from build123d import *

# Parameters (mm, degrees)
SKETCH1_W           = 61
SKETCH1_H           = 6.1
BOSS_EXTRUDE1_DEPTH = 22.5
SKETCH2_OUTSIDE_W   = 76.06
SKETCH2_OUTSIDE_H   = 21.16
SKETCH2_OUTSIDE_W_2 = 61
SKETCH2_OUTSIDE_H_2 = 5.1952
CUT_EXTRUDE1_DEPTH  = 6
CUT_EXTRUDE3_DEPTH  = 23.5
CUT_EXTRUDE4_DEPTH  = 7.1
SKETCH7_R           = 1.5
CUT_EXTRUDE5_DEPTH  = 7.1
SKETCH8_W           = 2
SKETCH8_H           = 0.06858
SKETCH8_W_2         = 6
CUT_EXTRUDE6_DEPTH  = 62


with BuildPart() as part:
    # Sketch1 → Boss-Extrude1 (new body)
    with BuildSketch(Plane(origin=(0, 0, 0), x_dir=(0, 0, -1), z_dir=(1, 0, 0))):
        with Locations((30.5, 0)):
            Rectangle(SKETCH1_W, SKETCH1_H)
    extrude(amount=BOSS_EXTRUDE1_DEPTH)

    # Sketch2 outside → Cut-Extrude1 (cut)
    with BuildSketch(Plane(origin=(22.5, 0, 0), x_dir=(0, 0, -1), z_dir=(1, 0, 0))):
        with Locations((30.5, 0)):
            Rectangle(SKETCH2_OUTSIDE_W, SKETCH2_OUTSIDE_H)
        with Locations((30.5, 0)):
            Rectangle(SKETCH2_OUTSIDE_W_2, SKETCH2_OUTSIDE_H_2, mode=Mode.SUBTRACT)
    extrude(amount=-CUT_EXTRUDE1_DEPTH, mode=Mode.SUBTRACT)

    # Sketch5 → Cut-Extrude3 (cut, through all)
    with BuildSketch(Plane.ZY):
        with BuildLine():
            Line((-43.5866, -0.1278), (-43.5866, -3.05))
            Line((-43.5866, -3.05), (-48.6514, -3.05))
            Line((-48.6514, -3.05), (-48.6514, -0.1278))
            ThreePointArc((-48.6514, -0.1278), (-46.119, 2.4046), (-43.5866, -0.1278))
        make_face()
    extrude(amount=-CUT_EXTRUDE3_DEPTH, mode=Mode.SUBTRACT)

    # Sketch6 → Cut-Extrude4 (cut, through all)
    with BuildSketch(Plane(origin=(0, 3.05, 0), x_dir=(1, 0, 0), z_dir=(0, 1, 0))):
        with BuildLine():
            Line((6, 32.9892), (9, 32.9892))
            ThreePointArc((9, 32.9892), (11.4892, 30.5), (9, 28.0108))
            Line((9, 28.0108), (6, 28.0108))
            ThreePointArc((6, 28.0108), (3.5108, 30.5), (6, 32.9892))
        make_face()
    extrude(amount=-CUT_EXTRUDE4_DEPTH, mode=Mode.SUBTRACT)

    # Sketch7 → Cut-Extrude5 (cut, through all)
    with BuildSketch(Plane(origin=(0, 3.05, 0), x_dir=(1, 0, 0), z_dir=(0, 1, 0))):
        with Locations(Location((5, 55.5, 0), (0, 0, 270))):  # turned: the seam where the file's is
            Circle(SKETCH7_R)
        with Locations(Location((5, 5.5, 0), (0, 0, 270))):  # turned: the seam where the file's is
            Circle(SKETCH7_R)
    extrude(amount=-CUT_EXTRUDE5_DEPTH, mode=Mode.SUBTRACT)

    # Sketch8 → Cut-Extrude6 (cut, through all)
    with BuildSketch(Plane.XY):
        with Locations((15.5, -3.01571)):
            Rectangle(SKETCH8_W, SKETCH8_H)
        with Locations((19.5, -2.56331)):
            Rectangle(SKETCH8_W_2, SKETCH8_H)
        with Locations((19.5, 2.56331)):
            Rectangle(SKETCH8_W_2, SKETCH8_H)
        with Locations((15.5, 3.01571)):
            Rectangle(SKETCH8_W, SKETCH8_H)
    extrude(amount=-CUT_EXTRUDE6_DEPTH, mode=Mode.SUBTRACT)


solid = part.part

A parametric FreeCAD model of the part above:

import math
import FreeCAD as App
import Part
import Sketcher
Q = App.Units.Quantity

doc = App.newDocument("Part")
body = doc.addObject("PartDesign::Body", "Body")

sketch1 = body.newObject("Sketcher::SketchObject", "Sketch")
sketch1.AttachmentSupport = (doc.getObject("YZ_Plane"), [""])
sketch1.MapMode = "FlatFace"
sketch1.addGeometry(Part.LineSegment(App.Vector(3.05, 0, 0), App.Vector(-3.05, 0, 0)), False)
sketch1.addGeometry(Part.LineSegment(App.Vector(-3.05, 0, 0), App.Vector(-3.05, -61, 0)), False)
sketch1.addGeometry(Part.LineSegment(App.Vector(-3.05, -61, 0), App.Vector(3.05, -61, 0)), False)
sketch1.addGeometry(Part.LineSegment(App.Vector(3.05, -61, 0), App.Vector(3.05, 0, 0)), False)
sketch1.addConstraint(Sketcher.Constraint("Coincident", 0, 2, 1, 1))
sketch1.addConstraint(Sketcher.Constraint("Coincident", 1, 2, 2, 1))
sketch1.addConstraint(Sketcher.Constraint("Coincident", 2, 2, 3, 1))
sketch1.addConstraint(Sketcher.Constraint("Coincident", 3, 2, 0, 1))
sketch1.addConstraint(Sketcher.Constraint("Horizontal", 0))
sketch1.addConstraint(Sketcher.Constraint("Vertical", 1))
sketch1.addConstraint(Sketcher.Constraint("Horizontal", 2))
sketch1.addConstraint(Sketcher.Constraint("Vertical", 3))
sketch1.addConstraint(Sketcher.Constraint("Symmetric", 0, 2, 3, 2, -1, 1))
sketch1.addConstraint(Sketcher.Constraint("DistanceY", 1, 2, 1, 1, Q("61 mm")))
sketch1.addConstraint(Sketcher.Constraint("DistanceX", 0, 2, 0, 1, Q("6.1 mm")))
pad1 = body.newObject("PartDesign::Pad", "Pad")
pad1.Profile = sketch1
pad1.Length = 22.5

sketch2 = body.newObject("Sketcher::SketchObject", "Sketch001")
sketch2.AttachmentSupport = (doc.getObject("YZ_Plane"), [""])
sketch2.MapMode = "FlatFace"
sketch2.AttachmentOffset = App.Placement(App.Vector(0, 0, 22.5), App.Rotation())
sketch2.addGeometry(Part.LineSegment(App.Vector(10.58, 7.53, 0), App.Vector(-10.58, 7.53, 0)), False)
sketch2.addGeometry(Part.LineSegment(App.Vector(-10.58, 7.53, 0), App.Vector(-10.58, -68.53, 0)), False)
sketch2.addGeometry(Part.LineSegment(App.Vector(-10.58, -68.53, 0), App.Vector(10.58, -68.53, 0)), False)
sketch2.addGeometry(Part.LineSegment(App.Vector(10.58, -68.53, 0), App.Vector(10.58, 7.53, 0)), False)
sketch2.addGeometry(Part.LineSegment(App.Vector(-2.5976, -61, 0), App.Vector(-2.5976, 0, 0)), False)
sketch2.addGeometry(Part.LineSegment(App.Vector(-2.5976, 0, 0), App.Vector(2.5976, 0, 0)), False)
sketch2.addGeometry(Part.LineSegment(App.Vector(2.5976, 0, 0), App.Vector(2.5976, -61, 0)), False)
sketch2.addGeometry(Part.LineSegment(App.Vector(2.5976, -61, 0), App.Vector(-2.5976, -61, 0)), False)
sketch2.addConstraint(Sketcher.Constraint("Coincident", 0, 2, 1, 1))
sketch2.addConstraint(Sketcher.Constraint("Coincident", 1, 2, 2, 1))
sketch2.addConstraint(Sketcher.Constraint("Coincident", 2, 2, 3, 1))
sketch2.addConstraint(Sketcher.Constraint("Coincident", 3, 2, 0, 1))
sketch2.addConstraint(Sketcher.Constraint("Coincident", 4, 2, 5, 1))
sketch2.addConstraint(Sketcher.Constraint("Coincident", 5, 2, 6, 1))
sketch2.addConstraint(Sketcher.Constraint("Coincident", 6, 2, 7, 1))
sketch2.addConstraint(Sketcher.Constraint("Coincident", 7, 2, 4, 1))
sketch2.addConstraint(Sketcher.Constraint("Horizontal", 0))
sketch2.addConstraint(Sketcher.Constraint("Vertical", 1))
sketch2.addConstraint(Sketcher.Constraint("Horizontal", 2))
sketch2.addConstraint(Sketcher.Constraint("Vertical", 3))
sketch2.addConstraint(Sketcher.Constraint("Vertical", 4))
sketch2.addConstraint(Sketcher.Constraint("Horizontal", 5))
sketch2.addConstraint(Sketcher.Constraint("Vertical", 6))
sketch2.addConstraint(Sketcher.Constraint("Horizontal", 7))
sketch2.addConstraint(Sketcher.Constraint("Symmetric", 4, 2, 5, 2, -1, 1))
sketch2.addConstraint(Sketcher.Constraint("DistanceY", 4, 1, 4, 2, Q("61 mm")))
sketch2.addConstraint(Sketcher.Constraint("DistanceX", 0, 2, 0, 1, Q("21.16 mm")))
sketch2.addConstraint(Sketcher.Constraint("DistanceY", 1, 2, 1, 1, Q("76.06 mm")))
sketch2.addConstraint(Sketcher.Constraint("DistanceX", 0, 2, -1, 1, Q("10.58 mm")))
sketch2.addConstraint(Sketcher.Constraint("DistanceY", -1, 1, 0, 2, Q("7.53 mm")))
sketch2.addConstraint(Sketcher.Constraint("DistanceX", 5, 1, 5, 2, Q("5.1952 mm")))
pocket1 = body.newObject("PartDesign::Pocket", "Pocket")
pocket1.Profile = sketch2
pocket1.Length = 6

sketch3 = body.newObject("Sketcher::SketchObject", "Sketch002")
sketch3.AttachmentSupport = (doc.getObject("YZ_Plane"), [""])
sketch3.MapMode = "FlatFace"
sketch3.addGeometry(Part.LineSegment(App.Vector(-3.05, -43.5866, 0), App.Vector(-0.1278, -43.5866, 0)), False)
sketch3.addGeometry(Part.ArcOfCircle(Part.Circle(App.Vector(-0.1278, -46.119, 0), App.Vector(0, 0, 1), 2.5324), math.radians(-90), math.radians(90)), False)
sketch3.addGeometry(Part.LineSegment(App.Vector(-0.1278, -48.6514, 0), App.Vector(-3.05, -48.6514, 0)), False)
sketch3.addGeometry(Part.LineSegment(App.Vector(-3.05, -48.6514, 0), App.Vector(-3.05, -43.5866, 0)), False)
sketch3.addConstraint(Sketcher.Constraint("Tangent", 0, 2, 1, 2))
sketch3.addConstraint(Sketcher.Constraint("Tangent", 1, 1, 2, 1))
sketch3.addConstraint(Sketcher.Constraint("Coincident", 2, 2, 3, 1))
sketch3.addConstraint(Sketcher.Constraint("Coincident", 3, 2, 0, 1))
sketch3.addConstraint(Sketcher.Constraint("Horizontal", 0))
sketch3.addConstraint(Sketcher.Constraint("Horizontal", 2))
sketch3.addConstraint(Sketcher.Constraint("Vertical", 3))
sketch3.addConstraint(Sketcher.Constraint("Radius", 1, Q("2.5324 mm")))
sketch3.addConstraint(Sketcher.Constraint("DistanceX", 2, 2, -1, 1, Q("3.05 mm")))
sketch3.addConstraint(Sketcher.Constraint("DistanceX", 0, 1, 0, 2, Q("2.9222 mm")))
sketch3.addConstraint(Sketcher.Constraint("DistanceY", 1, 3, -1, 1, Q("46.119 mm")))
pocket2 = body.newObject("PartDesign::Pocket", "Pocket001")
pocket2.Profile = sketch3
pocket2.Type = "ThroughAll"
pocket2.Reversed = True

sketch4 = body.newObject("Sketcher::SketchObject", "Sketch003")
sketch4.AttachmentSupport = (doc.getObject("XZ_Plane"), [""])
sketch4.MapMode = "FlatFace"
sketch4.AttachmentOffset = App.Placement(App.Vector(0, 0, -3.05), App.Rotation())
sketch4.addGeometry(Part.LineSegment(App.Vector(9, -32.9892, 0), App.Vector(6, -32.9892, 0)), False)
sketch4.addGeometry(Part.ArcOfCircle(Part.Circle(App.Vector(6, -30.5, 0), App.Vector(0, 0, 1), 2.4892), math.radians(90), math.radians(270)), False)
sketch4.addGeometry(Part.LineSegment(App.Vector(6, -28.0108, 0), App.Vector(9, -28.0108, 0)), False)
sketch4.addGeometry(Part.ArcOfCircle(Part.Circle(App.Vector(9, -30.5, 0), App.Vector(0, 0, 1), 2.4892), math.radians(-90), math.radians(90)), False)
sketch4.addConstraint(Sketcher.Constraint("Tangent", 0, 2, 1, 2))
sketch4.addConstraint(Sketcher.Constraint("Tangent", 1, 1, 2, 1))
sketch4.addConstraint(Sketcher.Constraint("Tangent", 2, 2, 3, 2))
sketch4.addConstraint(Sketcher.Constraint("Tangent", 3, 1, 0, 1))
sketch4.addConstraint(Sketcher.Constraint("Horizontal", 0))
sketch4.addConstraint(Sketcher.Constraint("Horizontal", 2))
sketch4.addConstraint(Sketcher.Constraint("DistanceX", 0, 2, 0, 1, Q("3 mm")))
sketch4.addConstraint(Sketcher.Constraint("DistanceX", -1, 1, 1, 3, Q("6 mm")))
sketch4.addConstraint(Sketcher.Constraint("DistanceY", 1, 3, -1, 1, Q("30.5 mm")))
sketch4.addConstraint(Sketcher.Constraint("Radius", 1, Q("2.4892 mm")))
pocket3 = body.newObject("PartDesign::Pocket", "Pocket002")
pocket3.Profile = sketch4
pocket3.Type = "ThroughAll"
pocket3.Reversed = True

sketch5 = body.newObject("Sketcher::SketchObject", "Sketch004")
sketch5.AttachmentSupport = (doc.getObject("XZ_Plane"), [""])
sketch5.MapMode = "FlatFace"
sketch5.AttachmentOffset = App.Placement(App.Vector(0, 0, -3.05), App.Rotation())
sketch5.addGeometry(Part.Circle(App.Vector(5, -55.5, 0), App.Vector(0, 0, 1), 1.5), False)
sketch5.addGeometry(Part.Circle(App.Vector(5, -5.5, 0), App.Vector(0, 0, 1), 1.5), False)
sketch5.addConstraint(Sketcher.Constraint("Equal", 0, 1))
sketch5.addConstraint(Sketcher.Constraint("Vertical", 0, 3, 1, 3))
sketch5.addConstraint(Sketcher.Constraint("Diameter", 0, Q("3 mm")))
sketch5.addConstraint(Sketcher.Constraint("DistanceX", -1, 1, 0, 3, Q("5 mm")))
sketch5.addConstraint(Sketcher.Constraint("DistanceY", 0, 3, 1, 3, Q("50 mm")))
sketch5.addConstraint(Sketcher.Constraint("DistanceY", 0, 3, -1, 1, Q("55.5 mm")))
pocket4 = body.newObject("PartDesign::Pocket", "Pocket003")
pocket4.Profile = sketch5
pocket4.Type = "ThroughAll"
pocket4.Reversed = True

sketch6 = body.newObject("Sketcher::SketchObject", "Sketch005")
sketch6.AttachmentSupport = (doc.getObject("XY_Plane"), [""])
sketch6.MapMode = "FlatFace"
sketch6.addGeometry(Part.LineSegment(App.Vector(14.5, -2.98142, 0), App.Vector(14.5, -3.05, 0)), False)
sketch6.addGeometry(Part.LineSegment(App.Vector(14.5, -3.05, 0), App.Vector(16.5, -3.05, 0)), False)
sketch6.addGeometry(Part.LineSegment(App.Vector(16.5, -3.05, 0), App.Vector(16.5, -2.98142, 0)), False)
sketch6.addGeometry(Part.LineSegment(App.Vector(16.5, -2.98142, 0), App.Vector(14.5, -2.98142, 0)), False)
sketch6.addGeometry(Part.LineSegment(App.Vector(16.5, -2.52902, 0), App.Vector(16.5, -2.5976, 0)), False)
sketch6.addGeometry(Part.LineSegment(App.Vector(16.5, -2.5976, 0), App.Vector(22.5, -2.5976, 0)), False)
sketch6.addGeometry(Part.LineSegment(App.Vector(22.5, -2.5976, 0), App.Vector(22.5, -2.52902, 0)), False)
sketch6.addGeometry(Part.LineSegment(App.Vector(22.5, -2.52902, 0), App.Vector(16.5, -2.52902, 0)), False)
sketch6.addGeometry(Part.LineSegment(App.Vector(16.5, 2.5976, 0), App.Vector(16.5, 2.52902, 0)), False)
sketch6.addGeometry(Part.LineSegment(App.Vector(16.5, 2.52902, 0), App.Vector(22.5, 2.52902, 0)), False)
sketch6.addGeometry(Part.LineSegment(App.Vector(22.5, 2.52902, 0), App.Vector(22.5, 2.5976, 0)), False)
sketch6.addGeometry(Part.LineSegment(App.Vector(22.5, 2.5976, 0), App.Vector(16.5, 2.5976, 0)), False)
sketch6.addGeometry(Part.LineSegment(App.Vector(14.5, 3.05, 0), App.Vector(14.5, 2.98142, 0)), False)
sketch6.addGeometry(Part.LineSegment(App.Vector(14.5, 2.98142, 0), App.Vector(16.5, 2.98142, 0)), False)
sketch6.addGeometry(Part.LineSegment(App.Vector(16.5, 2.98142, 0), App.Vector(16.5, 3.05, 0)), False)
sketch6.addGeometry(Part.LineSegment(App.Vector(16.5, 3.05, 0), App.Vector(14.5, 3.05, 0)), False)
sketch6.addConstraint(Sketcher.Constraint("Coincident", 0, 2, 1, 1))
sketch6.addConstraint(Sketcher.Constraint("Coincident", 1, 2, 2, 1))
sketch6.addConstraint(Sketcher.Constraint("Coincident", 2, 2, 3, 1))
sketch6.addConstraint(Sketcher.Constraint("Coincident", 3, 2, 0, 1))
sketch6.addConstraint(Sketcher.Constraint("Coincident", 4, 2, 5, 1))
sketch6.addConstraint(Sketcher.Constraint("Coincident", 5, 2, 6, 1))
sketch6.addConstraint(Sketcher.Constraint("Coincident", 6, 2, 7, 1))
sketch6.addConstraint(Sketcher.Constraint("Coincident", 7, 2, 4, 1))
sketch6.addConstraint(Sketcher.Constraint("Coincident", 8, 2, 9, 1))
sketch6.addConstraint(Sketcher.Constraint("Coincident", 9, 2, 10, 1))
sketch6.addConstraint(Sketcher.Constraint("Coincident", 10, 2, 11, 1))
sketch6.addConstraint(Sketcher.Constraint("Coincident", 11, 2, 8, 1))
sketch6.addConstraint(Sketcher.Constraint("Coincident", 12, 2, 13, 1))
sketch6.addConstraint(Sketcher.Constraint("Coincident", 13, 2, 14, 1))
sketch6.addConstraint(Sketcher.Constraint("Coincident", 14, 2, 15, 1))
sketch6.addConstraint(Sketcher.Constraint("Coincident", 15, 2, 12, 1))
sketch6.addConstraint(Sketcher.Constraint("Vertical", 0))
sketch6.addConstraint(Sketcher.Constraint("Horizontal", 1))
sketch6.addConstraint(Sketcher.Constraint("Vertical", 2))
sketch6.addConstraint(Sketcher.Constraint("Horizontal", 3))
sketch6.addConstraint(Sketcher.Constraint("Vertical", 4))
sketch6.addConstraint(Sketcher.Constraint("Horizontal", 5))
sketch6.addConstraint(Sketcher.Constraint("Vertical", 6))
sketch6.addConstraint(Sketcher.Constraint("Horizontal", 7))
sketch6.addConstraint(Sketcher.Constraint("Vertical", 8))
sketch6.addConstraint(Sketcher.Constraint("Horizontal", 9))
sketch6.addConstraint(Sketcher.Constraint("Vertical", 10))
sketch6.addConstraint(Sketcher.Constraint("Horizontal", 11))
sketch6.addConstraint(Sketcher.Constraint("Vertical", 12))
sketch6.addConstraint(Sketcher.Constraint("Horizontal", 13))
sketch6.addConstraint(Sketcher.Constraint("Vertical", 14))
sketch6.addConstraint(Sketcher.Constraint("Horizontal", 15))
sketch6.addConstraint(Sketcher.Constraint("Symmetric", 7, 2, 8, 2, -1))
sketch6.addConstraint(Sketcher.Constraint("Symmetric", 5, 2, 10, 2, -1))
sketch6.addConstraint(Sketcher.Constraint("Symmetric", 3, 2, 12, 2, -1))
sketch6.addConstraint(Sketcher.Constraint("Symmetric", 1, 2, 14, 2, -1))
sketch6.addConstraint(Sketcher.Constraint("Vertical", 2, 2, 4, 2))
sketch6.addConstraint(Sketcher.Constraint("Equal", 2, 4))
sketch6.addConstraint(Sketcher.Constraint("DistanceX", 1, 1, 1, 2, Q("2 mm")))
sketch6.addConstraint(Sketcher.Constraint("DistanceX", 5, 1, 5, 2, Q("6 mm")))
sketch6.addConstraint(Sketcher.Constraint("DistanceX", -1, 1, 0, 2, Q("14.5 mm")))
sketch6.addConstraint(Sketcher.Constraint("DistanceY", 0, 2, -1, 1, Q("3.05 mm")))
sketch6.addConstraint(Sketcher.Constraint("DistanceY", 0, 2, 0, 1, Q("0.06858 mm")))
sketch6.addConstraint(Sketcher.Constraint("DistanceY", 4, 2, -1, 1, Q("2.5976 mm")))
pocket5 = body.newObject("PartDesign::Pocket", "Pocket004")
pocket5.Profile = sketch6
pocket5.Type = "ThroughAll"

doc.recompute()
